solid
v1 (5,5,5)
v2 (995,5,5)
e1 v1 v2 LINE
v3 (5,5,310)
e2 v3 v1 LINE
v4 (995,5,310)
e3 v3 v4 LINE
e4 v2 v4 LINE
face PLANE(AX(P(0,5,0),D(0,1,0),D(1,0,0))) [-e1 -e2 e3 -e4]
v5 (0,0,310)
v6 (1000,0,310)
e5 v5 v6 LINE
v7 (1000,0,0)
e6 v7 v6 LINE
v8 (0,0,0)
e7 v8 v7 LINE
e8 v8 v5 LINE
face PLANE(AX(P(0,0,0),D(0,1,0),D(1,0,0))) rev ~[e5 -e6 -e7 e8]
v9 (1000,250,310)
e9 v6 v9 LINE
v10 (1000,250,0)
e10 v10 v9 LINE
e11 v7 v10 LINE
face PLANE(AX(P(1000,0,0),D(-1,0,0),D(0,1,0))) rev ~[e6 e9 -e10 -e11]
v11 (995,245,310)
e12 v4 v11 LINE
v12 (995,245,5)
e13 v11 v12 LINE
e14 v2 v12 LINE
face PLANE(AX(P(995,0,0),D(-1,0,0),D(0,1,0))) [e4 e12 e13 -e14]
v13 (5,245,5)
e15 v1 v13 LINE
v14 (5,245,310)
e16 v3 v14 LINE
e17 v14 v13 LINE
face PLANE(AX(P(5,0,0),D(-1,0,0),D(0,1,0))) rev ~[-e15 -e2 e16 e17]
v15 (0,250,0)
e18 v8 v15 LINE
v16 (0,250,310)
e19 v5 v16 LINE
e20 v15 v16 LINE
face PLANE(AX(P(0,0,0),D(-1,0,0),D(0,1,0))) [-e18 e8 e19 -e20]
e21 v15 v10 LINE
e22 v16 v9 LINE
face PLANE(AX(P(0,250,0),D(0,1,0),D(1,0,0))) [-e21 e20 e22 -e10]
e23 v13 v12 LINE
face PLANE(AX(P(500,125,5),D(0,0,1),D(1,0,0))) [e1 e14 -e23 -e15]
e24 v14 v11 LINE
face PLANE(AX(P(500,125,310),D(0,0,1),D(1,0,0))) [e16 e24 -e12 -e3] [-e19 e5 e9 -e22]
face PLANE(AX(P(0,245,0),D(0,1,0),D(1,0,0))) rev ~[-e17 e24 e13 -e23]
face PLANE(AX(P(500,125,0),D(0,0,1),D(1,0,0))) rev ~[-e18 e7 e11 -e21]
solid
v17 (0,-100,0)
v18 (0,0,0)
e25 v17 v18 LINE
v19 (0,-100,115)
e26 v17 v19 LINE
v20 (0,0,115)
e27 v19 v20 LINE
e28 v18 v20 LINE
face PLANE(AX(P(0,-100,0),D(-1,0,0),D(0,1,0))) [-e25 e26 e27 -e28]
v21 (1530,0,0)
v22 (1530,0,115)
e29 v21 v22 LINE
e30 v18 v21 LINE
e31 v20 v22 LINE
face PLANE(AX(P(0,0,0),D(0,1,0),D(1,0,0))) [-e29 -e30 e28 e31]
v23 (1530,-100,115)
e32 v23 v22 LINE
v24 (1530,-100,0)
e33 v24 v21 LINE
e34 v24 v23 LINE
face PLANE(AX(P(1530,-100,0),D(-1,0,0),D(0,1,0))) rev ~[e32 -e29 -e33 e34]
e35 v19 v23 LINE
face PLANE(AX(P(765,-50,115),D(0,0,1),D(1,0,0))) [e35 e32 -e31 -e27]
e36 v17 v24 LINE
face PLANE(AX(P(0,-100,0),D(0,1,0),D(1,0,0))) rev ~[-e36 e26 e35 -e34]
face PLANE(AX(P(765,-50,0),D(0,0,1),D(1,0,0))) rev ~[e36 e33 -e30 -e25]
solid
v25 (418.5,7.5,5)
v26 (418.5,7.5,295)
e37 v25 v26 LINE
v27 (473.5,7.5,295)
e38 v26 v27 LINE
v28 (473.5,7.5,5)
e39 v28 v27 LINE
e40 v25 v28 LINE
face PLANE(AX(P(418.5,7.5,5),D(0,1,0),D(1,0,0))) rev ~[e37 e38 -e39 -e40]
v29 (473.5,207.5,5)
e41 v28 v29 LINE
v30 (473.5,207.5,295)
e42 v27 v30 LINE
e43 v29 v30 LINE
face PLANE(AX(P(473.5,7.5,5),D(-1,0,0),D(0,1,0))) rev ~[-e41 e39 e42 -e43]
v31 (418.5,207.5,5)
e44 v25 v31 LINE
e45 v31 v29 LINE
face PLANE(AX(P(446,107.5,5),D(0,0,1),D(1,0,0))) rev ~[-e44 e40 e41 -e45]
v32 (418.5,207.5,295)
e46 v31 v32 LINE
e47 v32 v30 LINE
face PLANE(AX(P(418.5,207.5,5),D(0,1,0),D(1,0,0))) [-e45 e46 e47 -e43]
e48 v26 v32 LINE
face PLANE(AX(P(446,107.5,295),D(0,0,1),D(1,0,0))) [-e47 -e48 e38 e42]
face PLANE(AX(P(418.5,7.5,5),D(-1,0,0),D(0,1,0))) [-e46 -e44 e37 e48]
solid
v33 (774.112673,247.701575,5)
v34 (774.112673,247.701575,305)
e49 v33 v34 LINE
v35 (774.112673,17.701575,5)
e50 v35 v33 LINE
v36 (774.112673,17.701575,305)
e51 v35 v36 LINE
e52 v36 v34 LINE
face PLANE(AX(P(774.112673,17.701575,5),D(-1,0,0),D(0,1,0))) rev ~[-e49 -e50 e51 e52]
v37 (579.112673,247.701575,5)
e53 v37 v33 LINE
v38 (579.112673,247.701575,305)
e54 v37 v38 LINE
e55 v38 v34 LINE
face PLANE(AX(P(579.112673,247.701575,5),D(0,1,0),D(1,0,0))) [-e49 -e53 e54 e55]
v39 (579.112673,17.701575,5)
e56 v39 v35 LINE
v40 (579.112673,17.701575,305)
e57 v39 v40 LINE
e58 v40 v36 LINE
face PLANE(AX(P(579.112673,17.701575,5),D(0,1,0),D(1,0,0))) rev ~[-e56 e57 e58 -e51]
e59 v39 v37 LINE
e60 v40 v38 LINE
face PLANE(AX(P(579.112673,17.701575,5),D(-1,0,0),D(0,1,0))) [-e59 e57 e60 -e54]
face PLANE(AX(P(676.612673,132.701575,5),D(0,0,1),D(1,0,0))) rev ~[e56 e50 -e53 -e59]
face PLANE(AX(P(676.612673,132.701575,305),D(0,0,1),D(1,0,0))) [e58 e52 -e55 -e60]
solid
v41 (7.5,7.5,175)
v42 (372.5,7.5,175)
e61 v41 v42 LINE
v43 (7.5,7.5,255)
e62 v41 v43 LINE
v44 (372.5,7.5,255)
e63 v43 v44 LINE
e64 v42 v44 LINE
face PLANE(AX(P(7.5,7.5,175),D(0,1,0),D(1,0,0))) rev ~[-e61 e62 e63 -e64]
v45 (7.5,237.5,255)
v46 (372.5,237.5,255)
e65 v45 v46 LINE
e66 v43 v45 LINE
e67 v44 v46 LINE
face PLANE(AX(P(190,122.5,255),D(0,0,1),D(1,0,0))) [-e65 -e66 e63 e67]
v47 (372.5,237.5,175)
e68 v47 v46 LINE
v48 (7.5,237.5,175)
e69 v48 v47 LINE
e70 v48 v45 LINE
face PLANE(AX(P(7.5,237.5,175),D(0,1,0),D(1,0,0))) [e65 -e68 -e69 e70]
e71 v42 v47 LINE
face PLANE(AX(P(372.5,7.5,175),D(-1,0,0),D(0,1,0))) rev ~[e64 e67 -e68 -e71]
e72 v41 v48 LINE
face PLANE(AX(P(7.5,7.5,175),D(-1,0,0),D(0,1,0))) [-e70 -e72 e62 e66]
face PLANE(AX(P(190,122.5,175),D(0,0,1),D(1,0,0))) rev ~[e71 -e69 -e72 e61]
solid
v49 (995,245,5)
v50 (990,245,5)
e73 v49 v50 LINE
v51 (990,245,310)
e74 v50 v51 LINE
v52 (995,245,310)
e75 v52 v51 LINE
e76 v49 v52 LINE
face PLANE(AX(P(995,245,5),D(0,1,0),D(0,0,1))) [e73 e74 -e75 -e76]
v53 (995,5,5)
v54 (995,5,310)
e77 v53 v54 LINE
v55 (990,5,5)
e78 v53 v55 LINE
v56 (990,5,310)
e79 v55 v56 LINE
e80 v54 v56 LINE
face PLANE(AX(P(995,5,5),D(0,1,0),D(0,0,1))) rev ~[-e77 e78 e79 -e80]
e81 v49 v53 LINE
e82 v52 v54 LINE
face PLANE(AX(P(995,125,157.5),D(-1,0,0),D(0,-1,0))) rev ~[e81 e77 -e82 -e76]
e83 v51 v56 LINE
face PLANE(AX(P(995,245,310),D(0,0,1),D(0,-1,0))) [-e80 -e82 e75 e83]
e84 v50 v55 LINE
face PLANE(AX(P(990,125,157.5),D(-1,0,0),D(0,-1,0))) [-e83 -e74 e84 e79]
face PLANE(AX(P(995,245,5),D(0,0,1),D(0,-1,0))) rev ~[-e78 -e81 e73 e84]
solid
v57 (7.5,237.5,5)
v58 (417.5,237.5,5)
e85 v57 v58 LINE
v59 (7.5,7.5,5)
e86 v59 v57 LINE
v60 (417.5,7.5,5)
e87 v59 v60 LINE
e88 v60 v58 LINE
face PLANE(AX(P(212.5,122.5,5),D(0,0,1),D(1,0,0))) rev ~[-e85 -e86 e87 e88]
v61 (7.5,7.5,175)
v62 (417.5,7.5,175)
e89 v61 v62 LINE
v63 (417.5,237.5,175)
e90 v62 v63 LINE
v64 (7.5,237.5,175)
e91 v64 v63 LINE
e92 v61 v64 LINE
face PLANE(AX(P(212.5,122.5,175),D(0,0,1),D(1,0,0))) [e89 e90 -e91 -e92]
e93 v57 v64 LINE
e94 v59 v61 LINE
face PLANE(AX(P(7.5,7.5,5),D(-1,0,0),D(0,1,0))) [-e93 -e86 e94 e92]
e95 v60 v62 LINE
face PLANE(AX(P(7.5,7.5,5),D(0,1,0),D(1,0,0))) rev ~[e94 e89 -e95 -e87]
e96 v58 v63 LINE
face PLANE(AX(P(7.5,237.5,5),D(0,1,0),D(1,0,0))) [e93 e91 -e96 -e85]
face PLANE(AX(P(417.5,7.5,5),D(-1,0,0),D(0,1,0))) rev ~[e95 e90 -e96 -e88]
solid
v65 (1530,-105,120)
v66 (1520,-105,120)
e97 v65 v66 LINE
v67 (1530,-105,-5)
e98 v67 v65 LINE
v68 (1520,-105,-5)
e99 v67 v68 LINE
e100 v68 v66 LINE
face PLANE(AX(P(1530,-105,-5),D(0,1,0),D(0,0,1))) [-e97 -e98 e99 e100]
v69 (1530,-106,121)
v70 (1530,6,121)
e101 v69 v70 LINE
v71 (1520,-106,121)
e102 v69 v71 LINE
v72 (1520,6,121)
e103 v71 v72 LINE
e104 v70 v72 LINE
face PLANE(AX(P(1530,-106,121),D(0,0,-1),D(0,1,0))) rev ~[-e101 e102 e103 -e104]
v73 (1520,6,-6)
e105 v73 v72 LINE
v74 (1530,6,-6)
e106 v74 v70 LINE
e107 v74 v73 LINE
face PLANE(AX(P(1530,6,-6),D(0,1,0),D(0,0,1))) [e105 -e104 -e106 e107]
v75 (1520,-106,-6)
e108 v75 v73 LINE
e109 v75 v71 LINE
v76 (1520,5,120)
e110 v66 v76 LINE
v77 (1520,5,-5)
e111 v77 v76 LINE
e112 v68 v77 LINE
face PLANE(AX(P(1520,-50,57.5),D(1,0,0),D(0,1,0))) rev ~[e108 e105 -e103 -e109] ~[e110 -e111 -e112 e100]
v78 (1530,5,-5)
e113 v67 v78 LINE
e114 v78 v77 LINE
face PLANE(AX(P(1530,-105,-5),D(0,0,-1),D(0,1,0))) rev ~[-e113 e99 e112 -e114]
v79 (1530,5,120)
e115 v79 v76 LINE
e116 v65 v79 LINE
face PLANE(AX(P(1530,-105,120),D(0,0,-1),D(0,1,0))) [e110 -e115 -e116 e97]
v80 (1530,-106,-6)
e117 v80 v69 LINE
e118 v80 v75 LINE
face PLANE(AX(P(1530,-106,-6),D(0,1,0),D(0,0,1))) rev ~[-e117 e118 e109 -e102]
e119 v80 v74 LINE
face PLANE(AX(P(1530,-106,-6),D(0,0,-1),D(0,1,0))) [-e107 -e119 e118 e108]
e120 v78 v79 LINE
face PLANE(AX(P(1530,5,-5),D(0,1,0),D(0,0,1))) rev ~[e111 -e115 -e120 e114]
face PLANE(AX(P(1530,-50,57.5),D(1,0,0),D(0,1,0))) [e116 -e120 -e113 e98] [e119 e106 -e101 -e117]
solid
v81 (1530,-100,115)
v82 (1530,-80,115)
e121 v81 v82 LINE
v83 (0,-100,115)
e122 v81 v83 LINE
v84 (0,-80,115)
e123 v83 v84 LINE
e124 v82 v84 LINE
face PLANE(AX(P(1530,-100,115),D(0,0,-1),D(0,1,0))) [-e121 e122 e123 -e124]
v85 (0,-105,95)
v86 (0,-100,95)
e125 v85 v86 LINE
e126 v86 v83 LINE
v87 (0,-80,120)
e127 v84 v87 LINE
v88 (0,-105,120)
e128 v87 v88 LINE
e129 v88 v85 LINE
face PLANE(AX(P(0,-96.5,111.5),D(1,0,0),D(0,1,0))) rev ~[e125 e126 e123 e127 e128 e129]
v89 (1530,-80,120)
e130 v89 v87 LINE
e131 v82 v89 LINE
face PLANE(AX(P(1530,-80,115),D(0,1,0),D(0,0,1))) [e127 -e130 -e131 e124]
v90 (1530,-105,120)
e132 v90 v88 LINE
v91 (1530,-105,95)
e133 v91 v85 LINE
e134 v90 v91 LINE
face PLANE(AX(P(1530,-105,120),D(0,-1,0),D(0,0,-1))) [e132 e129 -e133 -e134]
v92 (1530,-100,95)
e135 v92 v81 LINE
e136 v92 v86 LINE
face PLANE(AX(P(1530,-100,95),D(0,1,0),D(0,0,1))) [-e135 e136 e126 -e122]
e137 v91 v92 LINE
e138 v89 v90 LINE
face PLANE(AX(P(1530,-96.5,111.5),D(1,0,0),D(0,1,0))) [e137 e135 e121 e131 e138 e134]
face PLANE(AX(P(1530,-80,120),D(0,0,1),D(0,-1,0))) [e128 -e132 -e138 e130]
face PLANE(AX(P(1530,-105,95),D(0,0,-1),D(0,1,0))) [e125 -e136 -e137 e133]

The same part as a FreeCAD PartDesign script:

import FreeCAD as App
import Part
import Sketcher

V = App.Vector
Q = App.Units.Quantity


def faces_at(feature, points):
    """Names of the faces that lie closest to the given points."""
    faces = feature.Shape.Faces
    near = lambda p: min(range(len(faces)), key=lambda i: faces[i].distToShape(Part.Vertex(*p))[0])
    return sorted({f"Face{near(p) + 1}" for p in points})


def add_polygon(sketch, points):
    """Adds a closed chain of lines whose ends are joined by coincident constraints."""
    first, n = sketch.GeometryCount, len(points)
    for a, b in zip(points, points[1:] + points[:1]):
        sketch.addGeometry(Part.LineSegment(App.Vector(*a, 0), App.Vector(*b, 0)), False)
    for i in range(n):
        sketch.addConstraint(Sketcher.Constraint("Coincident", first + i, 2, first + (i + 1) % n, 1))

doc = App.newDocument("Part")
params = doc.addObject("Spreadsheet::Sheet", "Params")
for row, (alias, value) in enumerate([
    ("sketch1_width", "1000 mm"),
    ("sketch1_height", "250 mm"),
    ("pad1_length", "310 mm"),
    ("thickness_wall", "5 mm"),
    ("sketch2_width", "410 mm"),
    ("sketch2_height", "230 mm"),
    ("pad2_length", "170 mm"),
    ("sketch3_width", "365 mm"),
    ("sketch3_height", "230 mm"),
    ("pad3_length", "80 mm"),
    ("sketch4_width", "55 mm"),
    ("sketch4_height", "200 mm"),
    ("pad4_length", "290 mm"),
    ("sketch5_width", "195 mm"),
    ("sketch5_height", "230 mm"),
    ("pad5_length", "300 mm"),
    ("sketch6_width", "1530 mm"),
    ("sketch6_height", "100 mm"),
    ("pad6_length", "115 mm"),
    ("sketch7_width", "240 mm"),
    ("sketch7_height", "305 mm"),
    ("pad7_length", "5 mm"),
    ("sketch8_width", "20 mm"),
    ("sketch8_width2", "25 mm"),
    ("pad8_length", "1530 mm"),
    ("sketch9_width", "112 mm"),
    ("sketch9_width2", "110 mm"),
    ("sketch9_height", "127 mm"),
    ("sketch9_height2", "125 mm"),
    ("pad9_length", "10 mm"),
], start=1):
    params.set(f"A{row}", alias)
    params.set(f"B{row}", "=" + value)
    params.setAlias(f"B{row}", alias)

body = doc.addObject("PartDesign::Body", "Body")

sketch1 = doc.addObject("Sketcher::SketchObject", "Sketch")
body.addObject(sketch1)
sketch1.AttachmentSupport = (doc.XY_Plane, [""])
sketch1.MapMode = "FlatFace"
add_polygon(sketch1, [(0, 250), (0, 0), (1000, 0), (1000, 250)])
sketch1.addConstraint(Sketcher.Constraint("Vertical", 0))
sketch1.addConstraint(Sketcher.Constraint("Horizontal", 1))
sketch1.addConstraint(Sketcher.Constraint("Vertical", 2))
sketch1.addConstraint(Sketcher.Constraint("Horizontal", 3))
sketch1.addConstraint(Sketcher.Constraint("Coincident", 0, 2, -1, 1))
sketch1.addConstraint(Sketcher.Constraint("DistanceX", 1, 1, 1, 2, Q("1000 mm")))
sketch1.addConstraint(Sketcher.Constraint("DistanceY", 0, 2, 0, 1, Q("250 mm")))
sketch1.setExpression("Constraints[9]", "Params.sketch1_width")
sketch1.setExpression("Constraints[10]", "Params.sketch1_height")
pad1 = doc.addObject("PartDesign::Pad", "Pad")
body.addObject(pad1)
pad1.Profile = sketch1
pad1.setExpression("Length", "Params.pad1_length")
doc.recompute()

thickness = doc.addObject("PartDesign::Thickness", "Thickness")
body.addObject(thickness)
thickness.Base = (pad1, faces_at(pad1, [(500, 125, 310)]))
thickness.setExpression("Value", "Params.thickness_wall")
thickness.Reversed = True
thickness.Join = "Arc"
body2 = doc.addObject("PartDesign::Body", "Body001")

sketch2 = doc.addObject("Sketcher::SketchObject", "Sketch001")
body2.addObject(sketch2)
sketch2.AttachmentSupport = (doc.getObject("XY_Plane001"), [""])
sketch2.MapMode = "FlatFace"
sketch2.AttachmentOffset = App.Placement(V(0, 0, 5), App.Rotation())
add_polygon(sketch2, [(8, 238), (8, 8), (418, 8), (418, 238)])
sketch2.addConstraint(Sketcher.Constraint("Vertical", 0))
sketch2.addConstraint(Sketcher.Constraint("Horizontal", 1))
sketch2.addConstraint(Sketcher.Constraint("Vertical", 2))
sketch2.addConstraint(Sketcher.Constraint("Horizontal", 3))
sketch2.addConstraint(Sketcher.Constraint("DistanceX", 1, 1, 1, 2, Q("410 mm")))
sketch2.addConstraint(Sketcher.Constraint("DistanceY", 0, 2, 0, 1, Q("230 mm")))
sketch2.addConstraint(Sketcher.Constraint("DistanceX", -1, 1, 0, 2, Q("7.5 mm")))
sketch2.addConstraint(Sketcher.Constraint("DistanceY", -1, 1, 0, 2, Q("7.5 mm")))
sketch2.setExpression("Constraints[8]", "Params.sketch2_width")
sketch2.setExpression("Constraints[9]", "Params.sketch2_height")
pad2 = doc.addObject("PartDesign::Pad", "Pad001")
body2.addObject(pad2)
pad2.Profile = sketch2
pad2.setExpression("Length", "Params.pad2_length")
body3 = doc.addObject("PartDesign::Body", "Body002")

sketch3 = doc.addObject("Sketcher::SketchObject", "Sketch002")
body3.addObject(sketch3)
sketch3.AttachmentSupport = (doc.getObject("XY_Plane002"), [""])
sketch3.MapMode = "FlatFace"
sketch3.AttachmentOffset = App.Placement(V(0, 0, 175), App.Rotation())
add_polygon(sketch3, [(8, 238), (8, 8), (372, 8), (372, 238)])
sketch3.addConstraint(Sketcher.Constraint("Vertical", 0))
sketch3.addConstraint(Sketcher.Constraint("Horizontal", 1))
sketch3.addConstraint(Sketcher.Constraint("Vertical", 2))
sketch3.addConstraint(Sketcher.Constraint("Horizontal", 3))
sketch3.addConstraint(Sketcher.Constraint("DistanceX", 1, 1, 1, 2, Q("365 mm")))
sketch3.addConstraint(Sketcher.Constraint("DistanceY", 0, 2, 0, 1, Q("230 mm")))
sketch3.addConstraint(Sketcher.Constraint("DistanceX", -1, 1, 0, 2, Q("7.5 mm")))
sketch3.addConstraint(Sketcher.Constraint("DistanceY", -1, 1, 0, 2, Q("7.5 mm")))
sketch3.setExpression("Constraints[8]", "Params.sketch3_width")
sketch3.setExpression("Constraints[9]", "Params.sketch3_height")
pad3 = doc.addObject("PartDesign::Pad", "Pad002")
body3.addObject(pad3)
pad3.Profile = sketch3
pad3.setExpression("Length", "Params.pad3_length")
body4 = doc.addObject("PartDesign::Body", "Body003")

sketch4 = doc.addObject("Sketcher::SketchObject", "Sketch003")
body4.addObject(sketch4)
sketch4.AttachmentSupport = (doc.getObject("XY_Plane003"), [""])
sketch4.MapMode = "FlatFace"
sketch4.AttachmentOffset = App.Placement(V(0, 0, 5), App.Rotation())
add_polygon(sketch4, [(418, 208), (418, 8), (474, 8), (474, 208)])
sketch4.addConstraint(Sketcher.Constraint("Vertical", 0))
sketch4.addConstraint(Sketcher.Constraint("Horizontal", 1))
sketch4.addConstraint(Sketcher.Constraint("Vertical", 2))
sketch4.addConstraint(Sketcher.Constraint("Horizontal", 3))
sketch4.addConstraint(Sketcher.Constraint("DistanceX", 1, 1, 1, 2, Q("55 mm")))
sketch4.addConstraint(Sketcher.Constraint("DistanceY", 0, 2, 0, 1, Q("200 mm")))
sketch4.addConstraint(Sketcher.Constraint("DistanceX", -1, 1, 0, 2, Q("418.5 mm")))
sketch4.addConstraint(Sketcher.Constraint("DistanceY", -1, 1, 0, 2, Q("7.5 mm")))
sketch4.setExpression("Constraints[8]", "Params.sketch4_width")
sketch4.setExpression("Constraints[9]", "Params.sketch4_height")
pad4 = doc.addObject("PartDesign::Pad", "Pad003")
body4.addObject(pad4)
pad4.Profile = sketch4
pad4.setExpression("Length", "Params.pad4_length")
body5 = doc.addObject("PartDesign::Body", "Body004")

sketch5 = doc.addObject("Sketcher::SketchObject", "Sketch004")
body5.addObject(sketch5)
sketch5.AttachmentSupport = (doc.getObject("XY_Plane004"), [""])
sketch5.MapMode = "FlatFace"
sketch5.AttachmentOffset = App.Placement(V(0, 0, 5), App.Rotation())
add_polygon(sketch5, [(579, 248), (579, 18), (774, 18), (774, 248)])
sketch5.addConstraint(Sketcher.Constraint("Vertical", 0))
sketch5.addConstraint(Sketcher.Constraint("Horizontal", 1))
sketch5.addConstraint(Sketcher.Constraint("Vertical", 2))
sketch5.addConstraint(Sketcher.Constraint("Horizontal", 3))
sketch5.addConstraint(Sketcher.Constraint("DistanceX", 1, 1, 1, 2, Q("195 mm")))
sketch5.addConstraint(Sketcher.Constraint("DistanceY", 0, 2, 0, 1, Q("230 mm")))
sketch5.addConstraint(Sketcher.Constraint("DistanceX", -1, 1, 0, 2, Q("579.112673 mm")))
sketch5.addConstraint(Sketcher.Constraint("DistanceY", -1, 1, 0, 2, Q("17.701575 mm")))
sketch5.setExpression("Constraints[8]", "Params.sketch5_width")
sketch5.setExpression("Constraints[9]", "Params.sketch5_height")
pad5 = doc.addObject("PartDesign::Pad", "Pad004")
body5.addObject(pad5)
pad5.Profile = sketch5
pad5.setExpression("Length", "Params.pad5_length")
body6 = doc.addObject("PartDesign::Body", "Body005")

sketch6 = doc.addObject("Sketcher::SketchObject", "Sketch005")
body6.addObject(sketch6)
sketch6.AttachmentSupport = (doc.getObject("XY_Plane005"), [""])
sketch6.MapMode = "FlatFace"
add_polygon(sketch6, [(0, 0), (0, -100), (1530, -100), (1530, 0)])
sketch6.addConstraint(Sketcher.Constraint("Vertical", 0))
sketch6.addConstraint(Sketcher.Constraint("Horizontal", 1))
sketch6.addConstraint(Sketcher.Constraint("Vertical", 2))
sketch6.addConstraint(Sketcher.Constraint("Horizontal", 3))
sketch6.addConstraint(Sketcher.Constraint("Coincident", 3, 2, -1, 1))
sketch6.addConstraint(Sketcher.Constraint("DistanceX", 1, 1, 1, 2, Q("1530 mm")))
sketch6.addConstraint(Sketcher.Constraint("DistanceY", 0, 2, 0, 1, Q("100 mm")))
sketch6.setExpression("Constraints[9]", "Params.sketch6_width")
sketch6.setExpression("Constraints[10]", "Params.sketch6_height")
pad6 = doc.addObject("PartDesign::Pad", "Pad005")
body6.addObject(pad6)
pad6.Profile = sketch6
pad6.setExpression("Length", "Params.pad6_length")
body7 = doc.addObject("PartDesign::Body", "Body006")

sketch7 = doc.addObject("Sketcher::SketchObject", "Sketch006")
body7.addObject(sketch7)
sketch7.AttachmentSupport = (doc.getObject("YZ_Plane006"), [""])
sketch7.MapMode = "FlatFace"
sketch7.AttachmentOffset = App.Placement(V(0, 0, 995), App.Rotation())
add_polygon(sketch7, [(245, 310), (245, 5), (5, 5), (5, 310)])
sketch7.addConstraint(Sketcher.Constraint("Vertical", 0))
sketch7.addConstraint(Sketcher.Constraint("Horizontal", 1))
sketch7.addConstraint(Sketcher.Constraint("Vertical", 2))
sketch7.addConstraint(Sketcher.Constraint("Horizontal", 3))
sketch7.addConstraint(Sketcher.Constraint("DistanceX", 1, 2, 1, 1, Q("240 mm")))
sketch7.addConstraint(Sketcher.Constraint("DistanceY", 0, 2, 0, 1, Q("305 mm")))
sketch7.addConstraint(Sketcher.Constraint("DistanceX", -1, 1, 0, 2, Q("245 mm")))
sketch7.addConstraint(Sketcher.Constraint("DistanceY", -1, 1, 0, 2, Q("5 mm")))
sketch7.setExpression("Constraints[8]", "Params.sketch7_width")
sketch7.setExpression("Constraints[9]", "Params.sketch7_height")
pad7 = doc.addObject("PartDesign::Pad", "Pad006")
body7.addObject(pad7)
pad7.Profile = sketch7
pad7.setExpression("Length", "Params.pad7_length")
pad7.Reversed = True
body8 = doc.addObject("PartDesign::Body", "Body007")

sketch8 = doc.addObject("Sketcher::SketchObject", "Sketch007")
body8.addObject(sketch8)
sketch8.AttachmentSupport = (doc.getObject("YZ_Plane007"), [""])
sketch8.MapMode = "FlatFace"
sketch8.AttachmentOffset = App.Placement(V(0, 0, 1530), App.Rotation())
add_polygon(sketch8, [(-100, 95), (-100, 115), (-80, 115), (-80, 120), (-105, 120), (-105, 95)])
sketch8.addConstraint(Sketcher.Constraint("Vertical", 0))
sketch8.addConstraint(Sketcher.Constraint("Horizontal", 1))
sketch8.addConstraint(Sketcher.Constraint("Vertical", 2))
sketch8.addConstraint(Sketcher.Constraint("Horizontal", 3))
sketch8.addConstraint(Sketcher.Constraint("Vertical", 4))
sketch8.addConstraint(Sketcher.Constraint("Horizontal", 5))
sketch8.addConstraint(Sketcher.Constraint("Equal", 1, 0))
sketch8.addConstraint(Sketcher.Constraint("Equal", 5, 2))
sketch8.addConstraint(Sketcher.Constraint("DistanceX", 1, 1, 1, 2, Q("20 mm")))
sketch8.addConstraint(Sketcher.Constraint("DistanceX", 3, 2, 3, 1, Q("25 mm")))
sketch8.addConstraint(Sketcher.Constraint("DistanceX", 0, 2, -1, 1, Q("100 mm")))
sketch8.addConstraint(Sketcher.Constraint("DistanceY", -1, 1, 0, 2, Q("115 mm")))
sketch8.setExpression("Constraints[14]", "Params.sketch8_width")
sketch8.setExpression("Constraints[15]", "Params.sketch8_width2")
pad8 = doc.addObject("PartDesign::Pad", "Pad007")
body8.addObject(pad8)
pad8.Profile = sketch8
pad8.setExpression("Length", "Params.pad8_length")
pad8.Reversed = True
body9 = doc.addObject("PartDesign::Body", "Body008")

sketch9 = doc.addObject("Sketcher::SketchObject", "Sketch008")
body9.addObject(sketch9)
sketch9.AttachmentSupport = (doc.getObject("YZ_Plane008"), [""])
sketch9.MapMode = "FlatFace"
sketch9.AttachmentOffset = App.Placement(V(0, 0, 1530), App.Rotation())
add_polygon(sketch9, [(-106, 121), (-106, -6), (6, -6), (6, 121)])
add_polygon(sketch9, [(5, -5), (-105, -5), (-105, 120), (5, 120)])
sketch9.addConstraint(Sketcher.Constraint("Vertical", 0))
sketch9.addConstraint(Sketcher.Constraint("Horizontal", 1))
sketch9.addConstraint(Sketcher.Constraint("Vertical", 2))
sketch9.addConstraint(Sketcher.Constraint("Horizontal", 3))
sketch9.addConstraint(Sketcher.Constraint("Horizontal", 4))
sketch9.addConstraint(Sketcher.Constraint("Vertical", 5))
sketch9.addConstraint(Sketcher.Constraint("Horizontal", 6))
sketch9.addConstraint(Sketcher.Constraint("Vertical", 7))
sketch9.addConstraint(Sketcher.Constraint("DistanceX", 1, 1, 1, 2, Q("112 mm")))
sketch9.addConstraint(Sketcher.Constraint("DistanceX", 4, 2, 4, 1, Q("110 mm")))
sketch9.addConstraint(Sketcher.Constraint("DistanceY", 0, 2, 0, 1, Q("127 mm")))
sketch9.addConstraint(Sketcher.Constraint("DistanceY", 5, 1, 5, 2, Q("125 mm")))
sketch9.addConstraint(Sketcher.Constraint("DistanceX", 0, 2, -1, 1, Q("106 mm")))
sketch9.addConstraint(Sketcher.Constraint("DistanceY", 0, 2, -1, 1, Q("6 mm")))
sketch9.addConstraint(Sketcher.Constraint("DistanceX", 4, 2, -1, 1, Q("105 mm")))
sketch9.addConstraint(Sketcher.Constraint("DistanceY", 4, 2, -1, 1, Q("5 mm")))
sketch9.setExpression("Constraints[16]", "Params.sketch9_width")
sketch9.setExpression("Constraints[17]", "Params.sketch9_width2")
sketch9.setExpression("Constraints[18]", "Params.sketch9_height")
sketch9.setExpression("Constraints[19]", "Params.sketch9_height2")
pad9 = doc.addObject("PartDesign::Pad", "Pad008")
body9.addObject(pad9)
pad9.Profile = sketch9
pad9.setExpression("Length", "Params.pad9_length")
pad9.Reversed = True

doc.recompute()
